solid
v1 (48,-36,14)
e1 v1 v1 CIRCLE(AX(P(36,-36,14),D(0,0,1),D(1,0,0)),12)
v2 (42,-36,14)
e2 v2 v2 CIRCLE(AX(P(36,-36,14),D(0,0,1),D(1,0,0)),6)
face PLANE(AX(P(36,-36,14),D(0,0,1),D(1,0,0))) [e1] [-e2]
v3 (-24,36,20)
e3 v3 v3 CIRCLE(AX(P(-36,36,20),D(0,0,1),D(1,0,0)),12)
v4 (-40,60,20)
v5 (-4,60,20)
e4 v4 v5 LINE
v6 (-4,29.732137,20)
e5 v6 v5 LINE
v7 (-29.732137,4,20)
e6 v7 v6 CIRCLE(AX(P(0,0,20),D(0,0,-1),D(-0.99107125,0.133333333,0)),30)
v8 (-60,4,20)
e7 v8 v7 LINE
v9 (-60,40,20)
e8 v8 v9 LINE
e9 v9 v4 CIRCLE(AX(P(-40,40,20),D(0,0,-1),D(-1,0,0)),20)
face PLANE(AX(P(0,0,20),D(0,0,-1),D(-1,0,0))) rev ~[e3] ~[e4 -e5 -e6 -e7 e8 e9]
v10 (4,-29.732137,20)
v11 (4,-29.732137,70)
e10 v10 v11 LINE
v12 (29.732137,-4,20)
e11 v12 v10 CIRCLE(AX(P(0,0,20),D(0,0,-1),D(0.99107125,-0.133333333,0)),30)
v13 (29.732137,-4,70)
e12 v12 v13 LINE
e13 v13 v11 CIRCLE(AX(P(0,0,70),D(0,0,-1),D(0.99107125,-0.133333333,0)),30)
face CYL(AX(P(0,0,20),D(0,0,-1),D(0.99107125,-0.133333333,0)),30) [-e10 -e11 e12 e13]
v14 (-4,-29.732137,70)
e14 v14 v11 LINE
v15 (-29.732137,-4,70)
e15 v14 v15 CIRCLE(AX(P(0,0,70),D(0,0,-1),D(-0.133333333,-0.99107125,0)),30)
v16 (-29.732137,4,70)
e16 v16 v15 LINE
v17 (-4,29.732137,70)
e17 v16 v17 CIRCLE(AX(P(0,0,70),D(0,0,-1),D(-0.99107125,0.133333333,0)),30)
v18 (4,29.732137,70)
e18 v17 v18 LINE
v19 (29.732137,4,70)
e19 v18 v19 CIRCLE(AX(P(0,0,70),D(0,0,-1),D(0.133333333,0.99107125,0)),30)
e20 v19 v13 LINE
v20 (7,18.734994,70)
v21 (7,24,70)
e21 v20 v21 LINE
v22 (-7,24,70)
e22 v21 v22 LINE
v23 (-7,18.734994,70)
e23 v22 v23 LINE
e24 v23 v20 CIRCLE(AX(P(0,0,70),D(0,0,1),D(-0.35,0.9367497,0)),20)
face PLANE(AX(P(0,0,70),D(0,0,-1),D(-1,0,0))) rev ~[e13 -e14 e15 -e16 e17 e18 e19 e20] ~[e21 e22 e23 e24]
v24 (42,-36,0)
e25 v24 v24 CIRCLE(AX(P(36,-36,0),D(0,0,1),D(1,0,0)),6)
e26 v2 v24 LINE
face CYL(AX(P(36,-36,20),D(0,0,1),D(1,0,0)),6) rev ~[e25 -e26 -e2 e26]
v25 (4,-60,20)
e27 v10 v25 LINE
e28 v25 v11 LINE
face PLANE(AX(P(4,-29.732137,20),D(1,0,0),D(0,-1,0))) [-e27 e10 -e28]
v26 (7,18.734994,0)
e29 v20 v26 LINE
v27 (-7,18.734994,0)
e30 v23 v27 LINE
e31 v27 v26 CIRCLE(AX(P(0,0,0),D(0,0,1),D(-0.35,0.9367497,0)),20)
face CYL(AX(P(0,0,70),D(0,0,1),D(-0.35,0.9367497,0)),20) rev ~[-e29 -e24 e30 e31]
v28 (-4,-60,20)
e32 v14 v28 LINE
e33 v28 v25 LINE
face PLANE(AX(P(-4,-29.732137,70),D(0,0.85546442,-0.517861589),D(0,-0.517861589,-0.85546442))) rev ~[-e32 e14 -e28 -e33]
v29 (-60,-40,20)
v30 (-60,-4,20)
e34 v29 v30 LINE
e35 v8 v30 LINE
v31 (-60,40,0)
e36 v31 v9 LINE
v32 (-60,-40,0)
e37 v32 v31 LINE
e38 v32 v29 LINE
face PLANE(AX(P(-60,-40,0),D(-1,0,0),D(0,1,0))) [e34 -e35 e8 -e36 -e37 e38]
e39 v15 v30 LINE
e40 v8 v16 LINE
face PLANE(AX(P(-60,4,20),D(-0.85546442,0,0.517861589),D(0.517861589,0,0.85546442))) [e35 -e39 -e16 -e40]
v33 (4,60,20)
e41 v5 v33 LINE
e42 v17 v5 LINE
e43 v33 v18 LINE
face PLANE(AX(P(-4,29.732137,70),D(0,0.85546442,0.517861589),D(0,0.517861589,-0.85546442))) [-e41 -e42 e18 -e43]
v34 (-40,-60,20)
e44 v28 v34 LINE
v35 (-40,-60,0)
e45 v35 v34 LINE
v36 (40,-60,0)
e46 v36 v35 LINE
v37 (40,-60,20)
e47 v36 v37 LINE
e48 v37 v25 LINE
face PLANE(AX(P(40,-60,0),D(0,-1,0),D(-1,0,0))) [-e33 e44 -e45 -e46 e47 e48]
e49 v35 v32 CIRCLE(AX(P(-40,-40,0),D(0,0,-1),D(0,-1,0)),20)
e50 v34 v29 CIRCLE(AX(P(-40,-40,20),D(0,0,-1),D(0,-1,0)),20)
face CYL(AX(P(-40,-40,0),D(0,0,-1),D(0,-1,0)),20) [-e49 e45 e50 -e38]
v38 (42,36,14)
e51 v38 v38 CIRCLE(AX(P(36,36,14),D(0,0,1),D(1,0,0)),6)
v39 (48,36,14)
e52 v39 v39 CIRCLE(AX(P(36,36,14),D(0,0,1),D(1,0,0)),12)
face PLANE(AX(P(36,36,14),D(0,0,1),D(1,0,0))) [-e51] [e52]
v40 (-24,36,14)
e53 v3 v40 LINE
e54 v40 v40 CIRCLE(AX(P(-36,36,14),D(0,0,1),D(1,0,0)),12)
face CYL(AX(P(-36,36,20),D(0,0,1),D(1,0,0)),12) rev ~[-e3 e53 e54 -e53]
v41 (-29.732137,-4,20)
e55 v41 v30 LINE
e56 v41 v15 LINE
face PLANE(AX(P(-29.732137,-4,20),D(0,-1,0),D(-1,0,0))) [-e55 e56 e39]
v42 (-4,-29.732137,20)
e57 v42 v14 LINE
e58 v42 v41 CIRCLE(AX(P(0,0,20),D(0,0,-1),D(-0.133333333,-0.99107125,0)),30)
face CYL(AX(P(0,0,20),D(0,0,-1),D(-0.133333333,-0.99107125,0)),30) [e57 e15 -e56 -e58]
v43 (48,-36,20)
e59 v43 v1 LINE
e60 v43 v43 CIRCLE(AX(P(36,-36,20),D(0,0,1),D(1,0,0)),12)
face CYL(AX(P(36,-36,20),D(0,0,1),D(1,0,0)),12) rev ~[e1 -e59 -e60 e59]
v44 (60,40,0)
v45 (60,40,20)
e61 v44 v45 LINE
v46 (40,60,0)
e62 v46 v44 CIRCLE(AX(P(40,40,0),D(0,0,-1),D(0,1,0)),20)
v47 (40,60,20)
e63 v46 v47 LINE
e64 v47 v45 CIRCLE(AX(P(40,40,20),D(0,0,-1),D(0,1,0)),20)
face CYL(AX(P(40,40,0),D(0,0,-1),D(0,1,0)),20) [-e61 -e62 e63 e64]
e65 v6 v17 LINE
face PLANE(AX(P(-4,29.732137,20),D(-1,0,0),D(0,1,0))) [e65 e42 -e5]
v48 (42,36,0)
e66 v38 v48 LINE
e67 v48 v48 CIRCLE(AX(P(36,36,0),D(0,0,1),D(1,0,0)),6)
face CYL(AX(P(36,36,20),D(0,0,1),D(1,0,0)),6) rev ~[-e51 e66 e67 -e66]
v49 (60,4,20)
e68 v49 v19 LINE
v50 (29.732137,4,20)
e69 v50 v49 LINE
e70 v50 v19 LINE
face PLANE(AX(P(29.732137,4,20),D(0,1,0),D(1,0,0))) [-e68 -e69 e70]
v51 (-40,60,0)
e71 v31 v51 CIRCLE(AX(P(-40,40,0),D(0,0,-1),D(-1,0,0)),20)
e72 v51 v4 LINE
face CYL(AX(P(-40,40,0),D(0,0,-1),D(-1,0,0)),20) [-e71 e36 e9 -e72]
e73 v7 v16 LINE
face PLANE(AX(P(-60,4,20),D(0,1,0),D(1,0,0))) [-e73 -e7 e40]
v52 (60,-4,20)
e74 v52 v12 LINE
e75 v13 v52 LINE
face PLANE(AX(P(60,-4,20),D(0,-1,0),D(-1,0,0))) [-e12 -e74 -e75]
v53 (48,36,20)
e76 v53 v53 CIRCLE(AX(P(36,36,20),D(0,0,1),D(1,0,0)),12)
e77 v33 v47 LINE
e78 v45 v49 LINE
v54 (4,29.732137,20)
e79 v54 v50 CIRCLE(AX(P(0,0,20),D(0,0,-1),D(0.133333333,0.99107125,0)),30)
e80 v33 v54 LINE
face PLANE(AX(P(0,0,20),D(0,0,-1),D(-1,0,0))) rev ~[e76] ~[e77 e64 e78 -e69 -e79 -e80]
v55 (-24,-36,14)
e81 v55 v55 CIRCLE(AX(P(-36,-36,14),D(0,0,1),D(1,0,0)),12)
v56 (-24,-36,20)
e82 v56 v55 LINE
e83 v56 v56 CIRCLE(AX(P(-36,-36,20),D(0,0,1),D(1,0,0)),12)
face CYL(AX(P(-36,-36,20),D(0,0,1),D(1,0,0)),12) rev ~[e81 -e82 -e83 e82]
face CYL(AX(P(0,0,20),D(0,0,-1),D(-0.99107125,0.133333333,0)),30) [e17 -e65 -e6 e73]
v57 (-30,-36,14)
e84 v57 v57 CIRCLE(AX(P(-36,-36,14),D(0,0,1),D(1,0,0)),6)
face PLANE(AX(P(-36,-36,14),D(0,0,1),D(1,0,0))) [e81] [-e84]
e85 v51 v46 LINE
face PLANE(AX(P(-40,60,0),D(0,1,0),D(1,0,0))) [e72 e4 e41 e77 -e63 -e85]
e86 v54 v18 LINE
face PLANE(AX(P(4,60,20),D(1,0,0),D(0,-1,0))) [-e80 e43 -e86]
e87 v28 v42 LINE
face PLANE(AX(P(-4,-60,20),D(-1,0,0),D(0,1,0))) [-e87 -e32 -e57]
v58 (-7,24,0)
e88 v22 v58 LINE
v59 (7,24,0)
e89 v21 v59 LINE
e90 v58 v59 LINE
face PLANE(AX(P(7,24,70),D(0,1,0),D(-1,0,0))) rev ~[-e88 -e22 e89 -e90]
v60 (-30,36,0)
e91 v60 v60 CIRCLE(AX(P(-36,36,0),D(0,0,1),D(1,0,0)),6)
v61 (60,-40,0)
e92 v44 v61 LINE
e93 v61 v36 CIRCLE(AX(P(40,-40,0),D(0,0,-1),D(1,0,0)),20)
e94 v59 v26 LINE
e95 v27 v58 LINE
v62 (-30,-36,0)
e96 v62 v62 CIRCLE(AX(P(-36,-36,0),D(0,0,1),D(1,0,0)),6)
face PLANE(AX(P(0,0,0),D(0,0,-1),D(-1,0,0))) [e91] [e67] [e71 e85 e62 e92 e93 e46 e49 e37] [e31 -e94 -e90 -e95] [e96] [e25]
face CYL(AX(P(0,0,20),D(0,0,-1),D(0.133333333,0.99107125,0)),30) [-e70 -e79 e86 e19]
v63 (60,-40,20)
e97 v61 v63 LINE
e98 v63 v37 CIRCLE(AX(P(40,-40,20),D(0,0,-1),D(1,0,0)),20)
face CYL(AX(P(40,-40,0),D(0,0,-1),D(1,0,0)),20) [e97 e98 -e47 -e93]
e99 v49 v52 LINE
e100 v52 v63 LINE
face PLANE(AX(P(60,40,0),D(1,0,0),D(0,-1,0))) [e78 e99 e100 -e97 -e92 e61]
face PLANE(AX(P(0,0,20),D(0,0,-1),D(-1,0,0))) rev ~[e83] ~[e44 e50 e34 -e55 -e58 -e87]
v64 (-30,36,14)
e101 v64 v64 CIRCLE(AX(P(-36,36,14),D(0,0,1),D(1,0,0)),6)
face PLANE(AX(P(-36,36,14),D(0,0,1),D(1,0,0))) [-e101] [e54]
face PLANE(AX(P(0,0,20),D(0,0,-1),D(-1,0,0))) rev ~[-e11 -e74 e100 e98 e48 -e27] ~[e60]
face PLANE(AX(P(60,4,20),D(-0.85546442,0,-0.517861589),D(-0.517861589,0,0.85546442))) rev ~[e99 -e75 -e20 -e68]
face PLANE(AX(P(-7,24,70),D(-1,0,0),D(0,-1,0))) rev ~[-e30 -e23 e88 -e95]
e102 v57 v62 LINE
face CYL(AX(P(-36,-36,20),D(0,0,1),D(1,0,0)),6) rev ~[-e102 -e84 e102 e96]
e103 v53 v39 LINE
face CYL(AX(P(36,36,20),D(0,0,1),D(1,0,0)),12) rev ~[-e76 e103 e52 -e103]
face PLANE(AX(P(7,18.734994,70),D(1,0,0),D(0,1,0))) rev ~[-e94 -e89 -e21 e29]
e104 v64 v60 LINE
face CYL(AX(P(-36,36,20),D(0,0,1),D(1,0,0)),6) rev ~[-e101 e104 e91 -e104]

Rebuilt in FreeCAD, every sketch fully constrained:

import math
import FreeCAD as App
import Part
import Sketcher
from FreeCAD import Vector


def add_polygon(sketch, points):
    """Adds a closed chain of lines whose ends are joined by coincident constraints."""
    first, n = sketch.GeometryCount, len(points)
    for a, b in zip(points, points[1:] + points[:1]):
        sketch.addGeometry(Part.LineSegment(App.Vector(*a, 0), App.Vector(*b, 0)), False)
    for i in range(n):
        sketch.addConstraint(Sketcher.Constraint("Coincident", first + i, 2, first + (i + 1) % n, 1))

doc = App.newDocument("Part")
body = doc.addObject("PartDesign::Body", "Body")

# Sketch on XY plane
sketch1 = body.newObject("Sketcher::SketchObject", "Sketch")
sketch1.AttachmentSupport = (doc.getObject("XY_Plane"), [""])
sketch1.MapMode = "FlatFace"
sketch1.addGeometry([
    Part.LineSegment(Vector(-40, -60, 0), Vector(40, -60, 0)),  # 0
    Part.ArcOfCircle(Part.Circle(Vector(40, -40, 0), Vector(0, 0, 1), 20), math.radians(-90), math.radians(0)),  # 1
    Part.LineSegment(Vector(60, -40, 0), Vector(60, 40, 0)),  # 2
    Part.ArcOfCircle(Part.Circle(Vector(40, 40, 0), Vector(0, 0, 1), 20), math.radians(0), math.radians(90)),  # 3
    Part.LineSegment(Vector(40, 60, 0), Vector(-40, 60, 0)),  # 4
    Part.ArcOfCircle(Part.Circle(Vector(-40, 40, 0), Vector(0, 0, 1), 20), math.radians(90), math.radians(180)),  # 5
    Part.LineSegment(Vector(-60, 40, 0), Vector(-60, -40, 0)),  # 6
    Part.ArcOfCircle(Part.Circle(Vector(-40, -40, 0), Vector(0, 0, 1), 20), math.radians(180), math.radians(270)),  # 7
], False)
sketch1.addConstraint([
    Sketcher.Constraint("Tangent", 0, 2, 1, 1),
    Sketcher.Constraint("Tangent", 1, 2, 2, 1),
    Sketcher.Constraint("Tangent", 2, 2, 3, 1),
    Sketcher.Constraint("Tangent", 3, 2, 4, 1),
    Sketcher.Constraint("Tangent", 4, 2, 5, 1),
    Sketcher.Constraint("Tangent", 5, 2, 6, 1),
    Sketcher.Constraint("Tangent", 6, 2, 7, 1),
    Sketcher.Constraint("Tangent", 7, 2, 0, 1),
    Sketcher.Constraint("Horizontal", 0),
    Sketcher.Constraint("Vertical", 2),
    Sketcher.Constraint("Horizontal", 4),
    Sketcher.Constraint("Vertical", 6),
    Sketcher.Constraint("Equal", 1, 3),
    Sketcher.Constraint("Equal", 3, 5),
    Sketcher.Constraint("Equal", 5, 7),
    Sketcher.Constraint("Symmetric", 1, 3, 5, 3, -1, 1),
    Sketcher.Constraint("Equal", 4, 2),
    Sketcher.Constraint("Radius", 1, 20.0),
    Sketcher.Constraint("DistanceX", 0, 1, 0, 2, 80.0),
])
pad1 = body.newObject("PartDesign::Pad", "Pad")
pad1.Profile = sketch1
pad1.Length = 20

# Sketch on XY plane
sketch2 = body.newObject("Sketcher::SketchObject", "Sketch001")
sketch2.AttachmentSupport = (doc.getObject("XY_Plane"), [""])
sketch2.MapMode = "FlatFace"
sketch2.AttachmentOffset = App.Placement(Vector(0, 0, 20), App.Rotation())
sketch2.addGeometry([
    Part.Circle(Vector(-36, 36, 0), Vector(0, 0, 1), 12),
    Part.Circle(Vector(36, 36, 0), Vector(0, 0, 1), 12),
    Part.Circle(Vector(-36, -36, 0), Vector(0, 0, 1), 12),
    Part.Circle(Vector(36, -36, 0), Vector(0, 0, 1), 12),
], False)
sketch2.addConstraint([
    Sketcher.Constraint("Equal", 0, 1),
    Sketcher.Constraint("Equal", 1, 2),
    Sketcher.Constraint("Equal", 2, 3),
    Sketcher.Constraint("Symmetric", 1, 3, 2, 3, -1, 1),
    Sketcher.Constraint("Symmetric", 0, 3, 3, 3, -1, 1),
    Sketcher.Constraint("Symmetric", 0, 3, 1, 3, -2),
    Sketcher.Constraint("Diameter", 0, 24.0),
    Sketcher.Constraint("DistanceX", 0, 3, -1, 1, 36.0),
    Sketcher.Constraint("DistanceY", -1, 1, 0, 3, 36.0),
])
pocket1 = body.newObject("PartDesign::Pocket", "Pocket")
pocket1.Profile = sketch2
pocket1.Length = 6

# Sketch on XY plane
sketch3 = body.newObject("Sketcher::SketchObject", "Sketch002")
sketch3.AttachmentSupport = (doc.getObject("XY_Plane"), [""])
sketch3.MapMode = "FlatFace"
sketch3.AttachmentOffset = App.Placement(Vector(0, 0, 20), App.Rotation())
sketch3.addGeometry([
    Part.Circle(Vector(-36, 36, 0), Vector(0, 0, 1), 6),
    Part.Circle(Vector(36, 36, 0), Vector(0, 0, 1), 6),
    Part.Circle(Vector(36, -36, 0), Vector(0, 0, 1), 6),
    Part.Circle(Vector(-36, -36, 0), Vector(0, 0, 1), 6),
], False)
sketch3.addConstraint([
    Sketcher.Constraint("Equal", 0, 1),
    Sketcher.Constraint("Equal", 1, 2),
    Sketcher.Constraint("Equal", 2, 3),
    Sketcher.Constraint("Symmetric", 0, 3, 2, 3, -1, 1),
    Sketcher.Constraint("Symmetric", 1, 3, 3, 3, -1, 1),
    Sketcher.Constraint("Symmetric", 0, 3, 1, 3, -2),
    Sketcher.Constraint("Diameter", 0, 12.0),
    Sketcher.Constraint("DistanceX", 0, 3, -1, 1, 36.0),
    Sketcher.Constraint("DistanceY", -1, 1, 0, 3, 36.0),
])
pocket2 = body.newObject("PartDesign::Pocket", "Pocket001")
pocket2.Profile = sketch3
pocket2.Type = "ThroughAll"

# Sketch on XY plane
sketch4 = body.newObject("Sketcher::SketchObject", "Sketch003")
sketch4.AttachmentSupport = (doc.getObject("XY_Plane"), [""])
sketch4.MapMode = "FlatFace"
sketch4.AttachmentOffset = App.Placement(Vector(0, 0, 20), App.Rotation())
sketch4.addGeometry([
    Part.LineSegment(Vector(-4, -60, 0), Vector(4, -60, 0)),  # 0
    Part.LineSegment(Vector(4, -60, 0), Vector(4, -30, 0)),  # 1
    Part.ArcOfCircle(Part.Circle(Vector(0, 0, 0), Vector(0, 0, 1), 30), math.radians(-82), math.radians(-8)),  # 2
    Part.LineSegment(Vector(30, -4, 0), Vector(60, -4, 0)),  # 3
    Part.LineSegment(Vector(60, -4, 0), Vector(60, 4, 0)),  # 4
    Part.LineSegment(Vector(60, 4, 0), Vector(30, 4, 0)),  # 5
    Part.ArcOfCircle(Part.Circle(Vector(0, 0, 0), Vector(0, 0, 1), 30), math.radians(8), math.radians(82)),  # 6
    Part.LineSegment(Vector(4, 30, 0), Vector(4, 60, 0)),  # 7
    Part.LineSegment(Vector(4, 60, 0), Vector(-4, 60, 0)),  # 8
    Part.LineSegment(Vector(-4, 60, 0), Vector(-4, 30, 0)),  # 9
    Part.ArcOfCircle(Part.Circle(Vector(0, 0, 0), Vector(0, 0, 1), 30), math.radians(98), math.radians(172)),  # 10
    Part.LineSegment(Vector(-30, 4, 0), Vector(-60, 4, 0)),  # 11
    Part.LineSegment(Vector(-60, 4, 0), Vector(-60, -4, 0)),  # 12
    Part.LineSegment(Vector(-60, -4, 0), Vector(-30, -4, 0)),  # 13
    Part.ArcOfCircle(Part.Circle(Vector(0, 0, 0), Vector(0, 0, 1), 30), math.radians(-172), math.radians(-98)),  # 14
    Part.LineSegment(Vector(-4, -30, 0), Vector(-4, -60, 0)),  # 15
], False)
sketch4.addConstraint([
    Sketcher.Constraint("Coincident", 0, 2, 1, 1),
    Sketcher.Constraint("Coincident", 1, 2, 2, 1),
    Sketcher.Constraint("Coincident", 2, 2, 3, 1),
    Sketcher.Constraint("Coincident", 3, 2, 4, 1),
    Sketcher.Constraint("Coincident", 4, 2, 5, 1),
    Sketcher.Constraint("Coincident", 5, 2, 6, 1),
    Sketcher.Constraint("Coincident", 6, 2, 7, 1),
    Sketcher.Constraint("Coincident", 7, 2, 8, 1),
    Sketcher.Constraint("Coincident", 8, 2, 9, 1),
    Sketcher.Constraint("Coincident", 9, 2, 10, 1),
    Sketcher.Constraint("Coincident", 10, 2, 11, 1),
    Sketcher.Constraint("Coincident", 11, 2, 12, 1),
    Sketcher.Constraint("Coincident", 12, 2, 13, 1),
    Sketcher.Constraint("Coincident", 13, 2, 14, 1),
    Sketcher.Constraint("Coincident", 14, 2, 15, 1),
    Sketcher.Constraint("Coincident", 15, 2, 0, 1),
    Sketcher.Constraint("Horizontal", 0),
    Sketcher.Constraint("Vertical", 1),
    Sketcher.Constraint("Horizontal", 3),
    Sketcher.Constraint("Vertical", 4),
    Sketcher.Constraint("Horizontal", 5),
    Sketcher.Constraint("Vertical", 7),
    Sketcher.Constraint("Horizontal", 8),
    Sketcher.Constraint("Vertical", 9),
    Sketcher.Constraint("Horizontal", 11),
    Sketcher.Constraint("Vertical", 12),
    Sketcher.Constraint("Horizontal", 13),
    Sketcher.Constraint("Vertical", 15),
    Sketcher.Constraint("Coincident", 2, 3, -1, 1),
    Sketcher.Constraint("Coincident", 6, 3, -1, 1),
    Sketcher.Constraint("Coincident", 10, 3, -1, 1),
    Sketcher.Constraint("Coincident", 14, 3, -1, 1),
    Sketcher.Constraint("Equal", 2, 6),
    Sketcher.Constraint("Equal", 6, 10),
    Sketcher.Constraint("Equal", 10, 14),
    Sketcher.Constraint("Symmetric", 0, 2, 8, 2, -1, 1),
    Sketcher.Constraint("Symmetric", 3, 2, 11, 2, -1, 1),
    Sketcher.Constraint("Horizontal", 6, 2, 9, 2),
    Sketcher.Constraint("Horizontal", 5, 2, 10, 2),
    Sketcher.Constraint("Horizontal", 3, 2, 12, 2),
    Sketcher.Constraint("Horizontal", 1, 2, 14, 2),
    Sketcher.Constraint("Equal", 13, 1),
    Sketcher.Constraint("Equal", 8, 4),
    Sketcher.Constraint("Radius", 2, 30.0),
    Sketcher.Constraint("DistanceX", 0, 1, 0, 2, 8.0),
    Sketcher.Constraint("DistanceY", 0, 2, -1, 1, 60.0),
])
pad2 = body.newObject("PartDesign::Pad", "Pad001")
pad2.Profile = sketch4
pad2.Length = 50

# Sketch on XY plane
sketch5 = body.newObject("Sketcher::SketchObject", "Sketch004")
sketch5.AttachmentSupport = (doc.getObject("XY_Plane"), [""])
sketch5.MapMode = "FlatFace"
sketch5.AttachmentOffset = App.Placement(Vector(0, 0, 70), App.Rotation())
sketch5.addGeometry([
    Part.LineSegment(Vector(7, 19, 0), Vector(7, 24, 0)),
    Part.LineSegment(Vector(7, 24, 0), Vector(-7, 24, 0)),
    Part.LineSegment(Vector(-7, 24, 0), Vector(-7, 19, 0)),
    Part.ArcOfCircle(Part.Circle(Vector(0, 0, 0), Vector(0, 0, 1), 20), math.radians(110), math.radians(430)),
], False)
sketch5.addConstraint([
    Sketcher.Constraint("Coincident", 0, 2, 1, 1),
    Sketcher.Constraint("Coincident", 1, 2, 2, 1),
    Sketcher.Constraint("Coincident", 2, 2, 3, 1),
    Sketcher.Constraint("Coincident", 3, 2, 0, 1),
    Sketcher.Constraint("Vertical", 0),
    Sketcher.Constraint("Horizontal", 1),
    Sketcher.Constraint("Vertical", 2),
    Sketcher.Constraint("Coincident", 3, 3, -1, 1),
    Sketcher.Constraint("Horizontal", 2, 2, 3, 2),
    Sketcher.Constraint("Radius", 3, 20.0),
    Sketcher.Constraint("DistanceX", 1, 2, 1, 1, 14.0),
    Sketcher.Constraint("DistanceY", -1, 1, 0, 2, 24.0),
])
pocket3 = body.newObject("PartDesign::Pocket", "Pocket002")
pocket3.Profile = sketch5
pocket3.Type = "ThroughAll"

# Sketch on YZ plane
sketch6 = body.newObject("Sketcher::SketchObject", "Sketch005")
sketch6.AttachmentSupport = (doc.getObject("YZ_Plane"), [""])
sketch6.MapMode = "FlatFace"
sketch6.AttachmentOffset = App.Placement(Vector(0, 0, -4), App.Rotation())
add_polygon(sketch6, [(30, 70), (60, 70), (60, 20)])  # lines 0-2
sketch6.addConstraint([
    Sketcher.Constraint("Horizontal", 0),
    Sketcher.Constraint("Vertical", 1),
    Sketcher.Constraint("DistanceY", 1, 2, 1, 1, 50.0),
    Sketcher.Constraint("DistanceX", -1, 1, 0, 2, 60.0),
    Sketcher.Constraint("DistanceY", -1, 1, 0, 2, 70.0),
    Sketcher.Constraint("DistanceX", 0, 1, 0, 2, 30.267863),
])
pocket4 = body.newObject("PartDesign::Pocket", "Pocket003")
pocket4.Profile = sketch6
pocket4.Type = "ThroughAll"
pocket4.Reversed = True

# Sketch on YZ plane
sketch7 = body.newObject("Sketcher::SketchObject", "Sketch006")
sketch7.AttachmentSupport = (doc.getObject("YZ_Plane"), [""])
sketch7.MapMode = "FlatFace"
sketch7.AttachmentOffset = App.Placement(Vector(0, 0, -4), App.Rotation())
add_polygon(sketch7, [(-30, 70), (-60, 20), (-60, 70)])  # lines 0-2
sketch7.addConstraint([
    Sketcher.Constraint("Vertical", 1),
    Sketcher.Constraint("Horizontal", 2),
    Sketcher.Constraint("DistanceY", 1, 1, 1, 2, 50.0),
    Sketcher.Constraint("DistanceX", 0, 2, -1, 1, 60.0),
    Sketcher.Constraint("DistanceY", -1, 1, 0, 2, 20.0),
    Sketcher.Constraint("DistanceX", 2, 1, 2, 2, 30.267863),
])
pocket5 = body.newObject("PartDesign::Pocket", "Pocket004")
pocket5.Profile = sketch7
pocket5.Type = "ThroughAll"
pocket5.Reversed = True

# Sketch on XZ plane
sketch8 = body.newObject("Sketcher::SketchObject", "Sketch007")
sketch8.AttachmentSupport = (doc.getObject("XZ_Plane"), [""])
sketch8.MapMode = "FlatFace"
sketch8.AttachmentOffset = App.Placement(Vector(0, 0, -4), App.Rotation())
add_polygon(sketch8, [(-30, 70), (-60, 20), (-60, 70)])  # lines 0-2
add_polygon(sketch8, [(60, 20), (30, 70), (60, 70)])  # lines 3-5
sketch8.addConstraint([
    Sketcher.Constraint("Vertical", 1),
    Sketcher.Constraint("Horizontal", 2),
    Sketcher.Constraint("Horizontal", 4),
    Sketcher.Constraint("Vertical", 5),
    Sketcher.Constraint("Symmetric", 2, 2, 3, 2, -2),
    Sketcher.Constraint("Symmetric", 0, 2, 5, 2, -2),
    Sketcher.Constraint("DistanceY", 1, 1, 1, 2, 50.0),
    Sketcher.Constraint("DistanceX", 0, 2, -1, 1, 60.0),
    Sketcher.Constraint("DistanceY", -1, 1, 0, 2, 20.0),
    Sketcher.Constraint("DistanceX", 2, 1, 2, 2, 30.267863),
])
pocket6 = body.newObject("PartDesign::Pocket", "Pocket005")
pocket6.Profile = sketch8
pocket6.Type = "ThroughAll"
pocket6.Reversed = True

doc.recompute()
